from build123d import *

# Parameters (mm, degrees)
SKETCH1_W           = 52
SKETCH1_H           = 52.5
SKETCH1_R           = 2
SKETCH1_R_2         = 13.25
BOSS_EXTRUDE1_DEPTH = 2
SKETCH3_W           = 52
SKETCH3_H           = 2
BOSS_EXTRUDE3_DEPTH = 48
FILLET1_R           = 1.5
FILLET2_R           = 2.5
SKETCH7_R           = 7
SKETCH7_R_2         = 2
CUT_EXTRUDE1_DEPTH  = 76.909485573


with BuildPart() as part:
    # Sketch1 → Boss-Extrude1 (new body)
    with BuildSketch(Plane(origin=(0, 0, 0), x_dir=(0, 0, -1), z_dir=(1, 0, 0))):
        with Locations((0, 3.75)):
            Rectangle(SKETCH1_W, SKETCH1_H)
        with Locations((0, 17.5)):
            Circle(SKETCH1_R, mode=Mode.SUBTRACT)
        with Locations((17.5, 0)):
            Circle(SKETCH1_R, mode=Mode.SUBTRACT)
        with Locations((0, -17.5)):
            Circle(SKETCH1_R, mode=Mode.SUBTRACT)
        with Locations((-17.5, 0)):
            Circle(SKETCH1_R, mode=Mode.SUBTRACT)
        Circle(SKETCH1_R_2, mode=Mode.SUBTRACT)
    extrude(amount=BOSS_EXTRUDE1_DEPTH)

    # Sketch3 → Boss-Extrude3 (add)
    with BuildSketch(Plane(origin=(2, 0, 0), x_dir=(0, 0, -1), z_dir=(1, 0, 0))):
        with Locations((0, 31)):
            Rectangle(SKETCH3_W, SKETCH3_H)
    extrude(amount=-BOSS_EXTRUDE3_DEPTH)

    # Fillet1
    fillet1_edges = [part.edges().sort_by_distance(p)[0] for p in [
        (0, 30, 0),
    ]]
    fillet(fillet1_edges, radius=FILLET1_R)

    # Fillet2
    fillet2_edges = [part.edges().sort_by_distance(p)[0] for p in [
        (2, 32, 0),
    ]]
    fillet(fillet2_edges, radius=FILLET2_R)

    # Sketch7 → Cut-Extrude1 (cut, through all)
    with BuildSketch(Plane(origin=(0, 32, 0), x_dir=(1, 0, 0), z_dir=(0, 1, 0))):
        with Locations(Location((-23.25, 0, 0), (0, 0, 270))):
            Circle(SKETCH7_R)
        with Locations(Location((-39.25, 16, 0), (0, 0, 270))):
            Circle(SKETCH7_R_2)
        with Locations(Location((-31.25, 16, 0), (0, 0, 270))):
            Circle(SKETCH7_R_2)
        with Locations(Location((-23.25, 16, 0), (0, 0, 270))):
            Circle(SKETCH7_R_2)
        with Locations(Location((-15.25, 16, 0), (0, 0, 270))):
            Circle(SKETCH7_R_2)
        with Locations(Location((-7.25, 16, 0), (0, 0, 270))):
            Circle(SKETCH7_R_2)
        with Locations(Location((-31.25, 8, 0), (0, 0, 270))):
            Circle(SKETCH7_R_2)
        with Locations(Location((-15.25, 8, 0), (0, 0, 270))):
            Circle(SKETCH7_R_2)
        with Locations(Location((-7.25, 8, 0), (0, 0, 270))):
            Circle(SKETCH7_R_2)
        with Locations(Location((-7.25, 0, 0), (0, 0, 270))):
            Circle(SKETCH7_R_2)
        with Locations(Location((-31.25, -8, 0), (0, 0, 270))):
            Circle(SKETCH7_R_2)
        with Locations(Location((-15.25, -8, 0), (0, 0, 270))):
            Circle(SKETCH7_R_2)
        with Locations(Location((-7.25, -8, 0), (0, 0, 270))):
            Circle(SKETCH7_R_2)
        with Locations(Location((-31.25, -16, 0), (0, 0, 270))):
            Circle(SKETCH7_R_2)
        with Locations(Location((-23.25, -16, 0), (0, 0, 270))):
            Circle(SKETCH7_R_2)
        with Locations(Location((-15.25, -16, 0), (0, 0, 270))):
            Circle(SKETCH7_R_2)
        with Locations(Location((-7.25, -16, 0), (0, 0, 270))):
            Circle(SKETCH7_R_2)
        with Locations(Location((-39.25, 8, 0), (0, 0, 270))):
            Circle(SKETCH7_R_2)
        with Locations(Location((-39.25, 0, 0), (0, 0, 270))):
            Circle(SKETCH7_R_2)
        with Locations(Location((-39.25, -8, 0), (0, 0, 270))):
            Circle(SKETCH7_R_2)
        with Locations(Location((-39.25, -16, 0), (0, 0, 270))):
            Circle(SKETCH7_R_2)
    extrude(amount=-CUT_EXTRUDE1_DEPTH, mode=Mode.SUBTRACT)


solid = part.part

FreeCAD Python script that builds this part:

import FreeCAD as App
import Part
import Sketcher
from FreeCAD import Vector


def edges_at(feature, points):
    """Names of the edges that pass closest to the given points."""
    edges = feature.Shape.Edges
    near = lambda p: min(range(len(edges)), key=lambda i: edges[i].distToShape(Part.Vertex(*p))[0])
    return sorted({f"Edge{near(p) + 1}" for p in points})


def add_polygon(sketch, points):
    """Adds a closed chain of lines whose ends are joined by coincident constraints."""
    first, n = sketch.GeometryCount, len(points)
    for a, b in zip(points, points[1:] + points[:1]):
        sketch.addGeometry(Part.LineSegment(App.Vector(*a, 0), App.Vector(*b, 0)), False)
    for i in range(n):
        sketch.addConstraint(Sketcher.Constraint("Coincident", first + i, 2, first + (i + 1) % n, 1))

doc = App.newDocument("Part")
body = doc.addObject("PartDesign::Body", "Body")

# Sketch on YZ plane
sketch1 = body.newObject("Sketcher::SketchObject", "Sketch")
sketch1.AttachmentSupport = (doc.getObject("YZ_Plane"), [""])
sketch1.MapMode = "FlatFace"
add_polygon(sketch1, [(30, 26), (-22.5, 26), (-22.5, -26), (30, -26)])  # lines 0-3
sketch1.addGeometry(Part.Circle(Vector(-17.5, 0, 0), Vector(0, 0, 1), 2), False)  # 4
sketch1.addGeometry(Part.Circle(Vector(0, 17.5, 0), Vector(0, 0, 1), 2), False)  # 5
sketch1.addGeometry(Part.Circle(Vector(0, 0, 0), Vector(0, 0, 1), 13.25), False)  # 6
sketch1.addGeometry(Part.Circle(Vector(0, -17.5, 0), Vector(0, 0, 1), 2), False)  # 7
sketch1.addGeometry(Part.Circle(Vector(17.5, 0, 0), Vector(0, 0, 1), 2), False)  # 8
sketch1.addConstraint([
    Sketcher.Constraint("Horizontal", 0),
    Sketcher.Constraint("Vertical", 1),
    Sketcher.Constraint("Horizontal", 2),
    Sketcher.Constraint("Vertical", 3),
    Sketcher.Constraint("Coincident", 6, 3, -1, 1),
    Sketcher.Constraint("Equal", 4, 5),
    Sketcher.Constraint("Equal", 5, 7),
    Sketcher.Constraint("Equal", 7, 8),
    Sketcher.Constraint("Symmetric", 5, 3, 7, 3, -1, 1),
    Sketcher.Constraint("Symmetric", 4, 3, 8, 3, -1, 1),
    Sketcher.Constraint("PointOnObject", 4, 3, -1),
    Sketcher.Constraint("PointOnObject", 5, 3, -2),
    Sketcher.Constraint("Diameter", 4, 4.0),
    Sketcher.Constraint("Diameter", 6, 26.5),
    Sketcher.Constraint("DistanceY", 1, 2, 1, 1, 52.0),
    Sketcher.Constraint("DistanceX", 0, 2, 0, 1, 52.5),
    Sketcher.Constraint("DistanceY", -1, 1, 0, 2, 26.0),
    Sketcher.Constraint("DistanceX", -1, 1, 2, 2, 30.0),
    Sketcher.Constraint("DistanceY", 7, 3, 5, 3, 35.0),
    Sketcher.Constraint("DistanceX", 4, 3, 8, 3, 35.0),
])
pad1 = body.newObject("PartDesign::Pad", "Pad")
pad1.Profile = sketch1
pad1.Length = 2

# Sketch on YZ plane
sketch2 = body.newObject("Sketcher::SketchObject", "Sketch001")
sketch2.AttachmentSupport = (doc.getObject("YZ_Plane"), [""])
sketch2.MapMode = "FlatFace"
sketch2.AttachmentOffset = App.Placement(Vector(0, 0, 2), App.Rotation())
add_polygon(sketch2, [(32, 26), (30, 26), (30, -26), (32, -26)])  # lines 0-3
sketch2.addConstraint([
    Sketcher.Constraint("Horizontal", 0),
    Sketcher.Constraint("Vertical", 1),
    Sketcher.Constraint("Horizontal", 2),
    Sketcher.Constraint("Vertical", 3),
    Sketcher.Constraint("DistanceX", 0, 2, 0, 1, 2.0),
    Sketcher.Constraint("DistanceY", 1, 2, 1, 1, 52.0),
    Sketcher.Constraint("DistanceX", -1, 1, 0, 2, 30.0),
    Sketcher.Constraint("DistanceY", -1, 1, 0, 2, 26.0),
])
pad2 = body.newObject("PartDesign::Pad", "Pad001")
pad2.Profile = sketch2
pad2.Length = 48
pad2.Reversed = True
doc.recompute()

fillet = body.newObject("PartDesign::Fillet", "Fillet")
fillet.Base = (pad2, edges_at(pad2, [(0, 30, 0)]))
fillet.Radius = 1.5
doc.recompute()

fillet2 = body.newObject("PartDesign::Fillet", "Fillet001")
fillet2.Base = (fillet, edges_at(fillet, [(2, 32, 0)]))
fillet2.Radius = 2.5

# Sketch on XZ plane
sketch3 = body.newObject("Sketcher::SketchObject", "Sketch002")
sketch3.AttachmentSupport = (doc.getObject("XZ_Plane"), [""])
sketch3.MapMode = "FlatFace"
sketch3.AttachmentOffset = App.Placement(Vector(0, 0, -32), App.Rotation())
sketch3.addGeometry([
    Part.Circle(Vector(-23.25, 0, 0), Vector(0, 0, 1), 7),  # 0
    Part.Circle(Vector(-39.25, -16, 0), Vector(0, 0, 1), 2),  # 1
    Part.Circle(Vector(-31.25, -16, 0), Vector(0, 0, 1), 2),  # 2
    Part.Circle(Vector(-23.25, -16, 0), Vector(0, 0, 1), 2),  # 3
    Part.Circle(Vector(-15.25, -16, 0), Vector(0, 0, 1), 2),  # 4
    Part.Circle(Vector(-7.25, -16, 0), Vector(0, 0, 1), 2),  # 5
    Part.Circle(Vector(-31.25, -8, 0), Vector(0, 0, 1), 2),  # 6
    Part.Circle(Vector(-15.25, -8, 0), Vector(0, 0, 1), 2),  # 7
    Part.Circle(Vector(-7.25, -8, 0), Vector(0, 0, 1), 2),  # 8
    Part.Circle(Vector(-7.25, 0, 0), Vector(0, 0, 1), 2),  # 9
    Part.Circle(Vector(-31.25, 8, 0), Vector(0, 0, 1), 2),  # 10
    Part.Circle(Vector(-15.25, 8, 0), Vector(0, 0, 1), 2),  # 11
    Part.Circle(Vector(-7.25, 8, 0), Vector(0, 0, 1), 2),  # 12
    Part.Circle(Vector(-31.25, 16, 0), Vector(0, 0, 1), 2),  # 13
    Part.Circle(Vector(-23.25, 16, 0), Vector(0, 0, 1), 2),  # 14
    Part.Circle(Vector(-15.25, 16, 0), Vector(0, 0, 1), 2),  # 15
    Part.Circle(Vector(-7.25, 16, 0), Vector(0, 0, 1), 2),  # 16
    Part.Circle(Vector(-39.25, -8, 0), Vector(0, 0, 1), 2),  # 17
    Part.Circle(Vector(-39.25, 0, 0), Vector(0, 0, 1), 2),  # 18
    Part.Circle(Vector(-39.25, 8, 0), Vector(0, 0, 1), 2),  # 19
    Part.Circle(Vector(-39.25, 16, 0), Vector(0, 0, 1), 2),  # 20
], False)
sketch3.addConstraint([
    Sketcher.Constraint("Equal", 1, 2),
    Sketcher.Constraint("Equal", 2, 3),
    Sketcher.Constraint("Equal", 3, 4),
    Sketcher.Constraint("Equal", 4, 5),
    Sketcher.Constraint("Equal", 5, 6),
    Sketcher.Constraint("Equal", 6, 7),
    Sketcher.Constraint("Equal", 7, 8),
    Sketcher.Constraint("Equal", 8, 9),
    Sketcher.Constraint("Equal", 9, 10),
    Sketcher.Constraint("Equal", 10, 11),
    Sketcher.Constraint("Equal", 11, 12),
    Sketcher.Constraint("Equal", 12, 13),
    Sketcher.Constraint("Equal", 13, 14),
    Sketcher.Constraint("Equal", 14, 15),
    Sketcher.Constraint("Equal", 15, 16),
    Sketcher.Constraint("Equal", 16, 17),
    Sketcher.Constraint("Equal", 17, 18),
    Sketcher.Constraint("Equal", 18, 19),
    Sketcher.Constraint("Equal", 19, 20),
    Sketcher.Constraint("Symmetric", 6, 3, 10, 3, -1),
    Sketcher.Constraint("Symmetric", 7, 3, 11, 3, -1),
    Sketcher.Constraint("Symmetric", 8, 3, 12, 3, -1),
    Sketcher.Constraint("Symmetric", 2, 3, 13, 3, -1),
    Sketcher.Constraint("Symmetric", 3, 3, 14, 3, -1),
    Sketcher.Constraint("Symmetric", 4, 3, 15, 3, -1),
    Sketcher.Constraint("Symmetric", 5, 3, 16, 3, -1),
    Sketcher.Constraint("Symmetric", 17, 3, 19, 3, -1),
    Sketcher.Constraint("Symmetric", 1, 3, 20, 3, -1),
    Sketcher.Constraint("PointOnObject", 0, 3, -1),
    Sketcher.Constraint("PointOnObject", 9, 3, -1),
    Sketcher.Constraint("PointOnObject", 18, 3, -1),
    Sketcher.Constraint("Horizontal", 1, 3, 2, 3),
    Sketcher.Constraint("Horizontal", 2, 3, 3, 3),
    Sketcher.Constraint("Horizontal", 3, 3, 4, 3),
    Sketcher.Constraint("Horizontal", 4, 3, 5, 3),
    Sketcher.Constraint("Horizontal", 6, 3, 7, 3),
    Sketcher.Constraint("Horizontal", 7, 3, 8, 3),
    Sketcher.Constraint("Horizontal", 8, 3, 17, 3),
    Sketcher.Constraint("Vertical", 0, 3, 3, 3),
    Sketcher.Constraint("Vertical", 2, 3, 6, 3),
    Sketcher.Constraint("Vertical", 4, 3, 7, 3),
    Sketcher.Constraint("Vertical", 5, 3, 8, 3),
    Sketcher.Constraint("Vertical", 8, 3, 9, 3),
    Sketcher.Constraint("Vertical", 1, 3, 17, 3),
    Sketcher.Constraint("Vertical", 17, 3, 18, 3),
    Sketcher.Constraint("Diameter", 0, 14.0),
    Sketcher.Constraint("Diameter", 1, 4.0),
    Sketcher.Constraint("DistanceY", 1, 3, -1, 1, 16.0),
    Sketcher.Constraint("DistanceY", 6, 3, -1, 1, 8.0),
    Sketcher.Constraint("DistanceX", 1, 3, 0, 3, 16.0),
    Sketcher.Constraint("DistanceX", 1, 3, 2, 3, 8.0),
    Sketcher.Constraint("DistanceX", 3, 3, 4, 3, 8.0),
    Sketcher.Constraint("DistanceX", 4, 3, 5, 3, 8.0),
    Sketcher.Constraint("DistanceX", 0, 3, -1, 1, 23.25),
])
pocket1 = body.newObject("PartDesign::Pocket", "Pocket")
pocket1.Profile = sketch3
pocket1.Type = "ThroughAll"
pocket1.Reversed = True

doc.recompute()
